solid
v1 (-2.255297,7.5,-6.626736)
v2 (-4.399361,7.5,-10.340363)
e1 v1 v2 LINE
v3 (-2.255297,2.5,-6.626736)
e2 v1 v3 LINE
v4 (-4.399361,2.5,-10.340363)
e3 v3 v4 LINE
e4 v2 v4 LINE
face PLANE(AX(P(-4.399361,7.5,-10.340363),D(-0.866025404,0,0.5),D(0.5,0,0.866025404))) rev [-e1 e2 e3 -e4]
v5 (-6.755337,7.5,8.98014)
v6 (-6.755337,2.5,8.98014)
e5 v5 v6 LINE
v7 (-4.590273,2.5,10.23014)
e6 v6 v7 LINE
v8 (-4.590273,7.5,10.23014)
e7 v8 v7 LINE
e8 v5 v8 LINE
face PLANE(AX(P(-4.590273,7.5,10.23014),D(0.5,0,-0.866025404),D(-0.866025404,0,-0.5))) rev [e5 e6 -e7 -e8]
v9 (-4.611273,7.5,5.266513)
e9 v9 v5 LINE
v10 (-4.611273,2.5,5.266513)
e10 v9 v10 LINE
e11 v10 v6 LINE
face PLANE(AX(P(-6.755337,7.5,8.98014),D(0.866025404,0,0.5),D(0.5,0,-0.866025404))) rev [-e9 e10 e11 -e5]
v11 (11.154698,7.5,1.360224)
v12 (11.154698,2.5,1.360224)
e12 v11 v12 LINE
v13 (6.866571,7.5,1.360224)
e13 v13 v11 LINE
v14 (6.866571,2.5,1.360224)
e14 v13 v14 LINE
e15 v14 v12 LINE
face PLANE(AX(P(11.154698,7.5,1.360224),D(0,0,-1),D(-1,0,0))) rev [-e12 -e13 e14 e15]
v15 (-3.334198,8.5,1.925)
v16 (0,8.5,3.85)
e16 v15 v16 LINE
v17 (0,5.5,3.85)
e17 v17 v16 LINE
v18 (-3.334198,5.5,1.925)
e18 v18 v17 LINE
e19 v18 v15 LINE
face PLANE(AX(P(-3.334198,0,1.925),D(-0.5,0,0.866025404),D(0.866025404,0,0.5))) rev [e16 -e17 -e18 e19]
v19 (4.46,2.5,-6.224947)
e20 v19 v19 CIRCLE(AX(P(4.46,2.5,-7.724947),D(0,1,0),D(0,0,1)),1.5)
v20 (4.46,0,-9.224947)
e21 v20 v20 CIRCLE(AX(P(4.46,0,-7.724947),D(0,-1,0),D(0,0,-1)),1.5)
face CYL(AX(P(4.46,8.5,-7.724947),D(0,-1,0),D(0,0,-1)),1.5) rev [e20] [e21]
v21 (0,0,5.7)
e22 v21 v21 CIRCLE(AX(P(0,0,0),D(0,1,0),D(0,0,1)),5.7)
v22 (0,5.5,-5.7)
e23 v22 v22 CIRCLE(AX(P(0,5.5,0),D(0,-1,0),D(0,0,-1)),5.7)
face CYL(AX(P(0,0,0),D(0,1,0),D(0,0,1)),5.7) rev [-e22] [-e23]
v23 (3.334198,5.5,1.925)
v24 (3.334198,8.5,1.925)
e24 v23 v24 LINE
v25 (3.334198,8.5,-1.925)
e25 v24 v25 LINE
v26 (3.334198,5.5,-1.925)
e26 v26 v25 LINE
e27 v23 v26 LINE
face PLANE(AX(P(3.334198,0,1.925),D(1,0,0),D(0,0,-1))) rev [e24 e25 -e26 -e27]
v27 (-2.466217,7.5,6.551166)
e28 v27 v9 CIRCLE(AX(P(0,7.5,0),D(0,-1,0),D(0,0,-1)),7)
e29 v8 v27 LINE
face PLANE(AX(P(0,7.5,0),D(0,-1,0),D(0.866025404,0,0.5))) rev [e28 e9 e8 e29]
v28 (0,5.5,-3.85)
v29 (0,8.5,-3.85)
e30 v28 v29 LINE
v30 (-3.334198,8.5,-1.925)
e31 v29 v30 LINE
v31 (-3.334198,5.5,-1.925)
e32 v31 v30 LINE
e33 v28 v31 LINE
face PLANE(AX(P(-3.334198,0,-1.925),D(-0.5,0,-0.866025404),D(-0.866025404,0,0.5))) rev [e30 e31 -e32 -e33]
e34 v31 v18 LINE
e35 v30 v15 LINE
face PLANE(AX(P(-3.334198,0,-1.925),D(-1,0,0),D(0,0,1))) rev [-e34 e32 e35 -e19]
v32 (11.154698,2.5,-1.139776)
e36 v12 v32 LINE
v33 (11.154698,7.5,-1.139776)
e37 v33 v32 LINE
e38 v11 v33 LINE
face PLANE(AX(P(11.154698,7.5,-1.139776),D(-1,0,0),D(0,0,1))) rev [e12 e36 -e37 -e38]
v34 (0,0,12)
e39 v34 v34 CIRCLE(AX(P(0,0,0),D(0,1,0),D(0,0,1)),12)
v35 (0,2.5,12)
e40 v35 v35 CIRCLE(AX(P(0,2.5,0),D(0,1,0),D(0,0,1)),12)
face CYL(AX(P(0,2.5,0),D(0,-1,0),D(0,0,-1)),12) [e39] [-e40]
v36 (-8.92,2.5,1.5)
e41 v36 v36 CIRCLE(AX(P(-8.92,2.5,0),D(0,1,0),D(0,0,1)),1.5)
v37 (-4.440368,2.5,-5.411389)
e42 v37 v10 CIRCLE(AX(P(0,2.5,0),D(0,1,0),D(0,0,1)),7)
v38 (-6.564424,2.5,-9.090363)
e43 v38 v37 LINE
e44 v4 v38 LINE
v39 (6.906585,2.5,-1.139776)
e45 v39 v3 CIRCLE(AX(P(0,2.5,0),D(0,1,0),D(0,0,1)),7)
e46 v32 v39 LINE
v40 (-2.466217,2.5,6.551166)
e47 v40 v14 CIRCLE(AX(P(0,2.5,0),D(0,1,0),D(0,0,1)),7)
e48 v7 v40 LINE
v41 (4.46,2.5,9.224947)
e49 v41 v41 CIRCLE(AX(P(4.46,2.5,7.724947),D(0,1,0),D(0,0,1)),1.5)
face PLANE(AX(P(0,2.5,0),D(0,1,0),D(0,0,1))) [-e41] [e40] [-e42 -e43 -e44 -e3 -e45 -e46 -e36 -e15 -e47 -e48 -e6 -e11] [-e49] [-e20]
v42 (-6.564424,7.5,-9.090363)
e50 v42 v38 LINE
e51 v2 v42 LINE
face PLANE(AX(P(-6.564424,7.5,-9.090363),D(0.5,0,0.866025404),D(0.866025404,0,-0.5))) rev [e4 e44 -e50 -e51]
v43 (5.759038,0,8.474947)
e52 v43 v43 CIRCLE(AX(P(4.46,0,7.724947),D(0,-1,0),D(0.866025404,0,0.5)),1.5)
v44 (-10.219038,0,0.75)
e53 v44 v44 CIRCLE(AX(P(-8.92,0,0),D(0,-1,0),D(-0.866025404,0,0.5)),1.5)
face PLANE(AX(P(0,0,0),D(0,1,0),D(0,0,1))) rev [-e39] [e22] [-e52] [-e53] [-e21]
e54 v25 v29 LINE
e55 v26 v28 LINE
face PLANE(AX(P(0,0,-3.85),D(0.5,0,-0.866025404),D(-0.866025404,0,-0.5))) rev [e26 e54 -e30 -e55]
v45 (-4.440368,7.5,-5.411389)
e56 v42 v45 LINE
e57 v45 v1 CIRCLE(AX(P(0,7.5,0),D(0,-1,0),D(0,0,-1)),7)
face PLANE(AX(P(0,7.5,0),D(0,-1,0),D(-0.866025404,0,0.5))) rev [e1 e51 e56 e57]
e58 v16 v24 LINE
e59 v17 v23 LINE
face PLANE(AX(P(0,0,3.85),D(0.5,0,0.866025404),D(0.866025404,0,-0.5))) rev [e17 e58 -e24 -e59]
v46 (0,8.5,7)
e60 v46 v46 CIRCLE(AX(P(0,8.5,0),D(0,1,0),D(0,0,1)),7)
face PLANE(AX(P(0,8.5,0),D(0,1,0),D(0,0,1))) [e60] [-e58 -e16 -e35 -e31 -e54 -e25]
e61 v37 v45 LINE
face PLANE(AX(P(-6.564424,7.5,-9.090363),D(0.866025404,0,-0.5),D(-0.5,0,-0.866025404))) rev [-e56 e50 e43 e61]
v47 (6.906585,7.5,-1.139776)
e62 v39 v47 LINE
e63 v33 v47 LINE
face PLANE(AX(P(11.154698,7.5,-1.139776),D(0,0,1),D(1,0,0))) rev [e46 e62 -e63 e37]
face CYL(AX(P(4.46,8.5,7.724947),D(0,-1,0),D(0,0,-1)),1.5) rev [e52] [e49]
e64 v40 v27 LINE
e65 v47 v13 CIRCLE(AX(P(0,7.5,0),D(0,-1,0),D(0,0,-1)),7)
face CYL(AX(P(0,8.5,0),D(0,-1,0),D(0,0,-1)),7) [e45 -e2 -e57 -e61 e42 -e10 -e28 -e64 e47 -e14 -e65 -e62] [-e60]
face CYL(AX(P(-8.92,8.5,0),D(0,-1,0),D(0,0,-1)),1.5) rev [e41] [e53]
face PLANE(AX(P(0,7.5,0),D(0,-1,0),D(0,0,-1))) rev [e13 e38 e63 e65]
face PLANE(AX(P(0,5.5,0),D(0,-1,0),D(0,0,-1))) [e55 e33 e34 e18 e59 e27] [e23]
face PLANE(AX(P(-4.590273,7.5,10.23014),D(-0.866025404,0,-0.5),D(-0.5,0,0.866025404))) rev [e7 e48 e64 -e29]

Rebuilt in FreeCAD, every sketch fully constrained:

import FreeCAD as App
import Part
import Sketcher
Q = App.Units.Quantity

doc = App.newDocument("Part")
body = doc.addObject("PartDesign::Body", "Body")

sketch1 = body.newObject("Sketcher::SketchObject", "Sketch")
sketch1.AttachmentSupport = (doc.getObject("XZ_Plane"), [""])
sketch1.MapMode = "FlatFace"
sketch1.addGeometry(Part.Circle(App.Vector(0, 0, 0), App.Vector(0, 0, 1), 12), False)
sketch1.addConstraint([
    Sketcher.Constraint("Coincident", 0, 3, -1, 1),
    Sketcher.Constraint("Diameter", 0, 24.0),
])
pad1 = body.newObject("PartDesign::Pad", "Pad")
pad1.Profile = sketch1
pad1.Length = 2.5
pad1.Reversed = True

sketch2 = body.newObject("Sketcher::SketchObject", "Sketch001")
sketch2.AttachmentSupport = (doc.getObject("XZ_Plane"), [""])
sketch2.MapMode = "FlatFace"
sketch2.AttachmentOffset = App.Placement(App.Vector(0, 0, -2.5), App.Rotation())
sketch2.addGeometry(Part.Circle(App.Vector(0, 0, 0), App.Vector(0, 0, 1), 6), False)
sketch2.addConstraint([
    Sketcher.Constraint("Coincident", 0, 3, -1, 1),
    Sketcher.Constraint("Diameter", 0, 11.4),
])
pocket1 = body.newObject("PartDesign::Pocket", "Pocket")
pocket1.Profile = sketch2
pocket1.Length = 2.5
pocket1.Reversed = True

sketch3 = body.newObject("Sketcher::SketchObject", "Sketch002")
sketch3.AttachmentSupport = (doc.getObject("XZ_Plane"), [""])
sketch3.MapMode = "FlatFace"
sketch3.AttachmentOffset = App.Placement(App.Vector(0, 0, -2.5), App.Rotation())
sketch3.addGeometry(Part.Circle(App.Vector(0, 0, 0), App.Vector(0, 0, 1), 7), False)
sketch3.addConstraint([
    Sketcher.Constraint("Coincident", 0, 3, -1, 1),
    Sketcher.Constraint("Diameter", 0, 14.0),
])
pad2 = body.newObject("PartDesign::Pad", "Pad001")
pad2.Profile = sketch3
pad2.Length = 6
pad2.Reversed = True

sketch4 = body.newObject("Sketcher::SketchObject", "Sketch003")
sketch4.AttachmentSupport = (doc.getObject("XZ_Plane"), [""])
sketch4.MapMode = "FlatFace"
sketch4.AttachmentOffset = App.Placement(App.Vector(0, 0, -8.5), App.Rotation())
sketch4.addGeometry([
    Part.LineSegment(App.Vector(3.3, 1.9, 0), App.Vector(3.3, -1.9, 0)),
    Part.LineSegment(App.Vector(3.3, -1.9, 0), App.Vector(0, -3.9, 0)),
    Part.LineSegment(App.Vector(0, -3.9, 0), App.Vector(-3.3, -1.9, 0)),
    Part.LineSegment(App.Vector(-3.3, -1.9, 0), App.Vector(-3.3, 1.9, 0)),
    Part.LineSegment(App.Vector(-3.3, 1.9, 0), App.Vector(0, 3.9, 0)),
    Part.LineSegment(App.Vector(0, 3.9, 0), App.Vector(3.3, 1.9, 0)),
], False)
sketch4.addConstraint([
    Sketcher.Constraint("Coincident", 0, 2, 1, 1),
    Sketcher.Constraint("Coincident", 1, 2, 2, 1),
    Sketcher.Constraint("Coincident", 2, 2, 3, 1),
    Sketcher.Constraint("Coincident", 3, 2, 4, 1),
    Sketcher.Constraint("Coincident", 4, 2, 5, 1),
    Sketcher.Constraint("Coincident", 5, 2, 0, 1),
    Sketcher.Constraint("Vertical", 0),
    Sketcher.Constraint("Vertical", 3),
    Sketcher.Constraint("Symmetric", 0, 2, 3, 2, -1, 1),
    Sketcher.Constraint("Symmetric", 1, 2, 4, 2, -1, 1),
    Sketcher.Constraint("PointOnObject", 1, 2, -2),
    Sketcher.Constraint("Parallel", 2, 5),
    Sketcher.Constraint("Horizontal", 0, 2, 2, 2),
    Sketcher.Constraint("Angle", 1, Q("-150 deg")),
    Sketcher.Constraint("DistanceY", 0, 2, 0, 1, 3.85),
    Sketcher.Constraint("DistanceY", 1, 2, 4, 2, 7.7),
])
pocket2 = body.newObject("PartDesign::Pocket", "Pocket001")
pocket2.Profile = sketch4
pocket2.Type = "ThroughAll"
pocket2.Reversed = True

sketch5 = body.newObject("Sketcher::SketchObject", "Sketch004")
sketch5.AttachmentSupport = (doc.getObject("XZ_Plane"), [""])
sketch5.MapMode = "FlatFace"
sketch5.AttachmentOffset = App.Placement(App.Vector(0, 0, -5.5), App.Rotation())
sketch5.addGeometry(Part.Circle(App.Vector(0, 0, 0), App.Vector(0, 0, 1), 6), False)
sketch5.addConstraint([
    Sketcher.Constraint("Coincident", 0, 3, -1, 1),
    Sketcher.Constraint("Diameter", 0, 11.4),
])
pocket3 = body.newObject("PartDesign::Pocket", "Pocket002")
pocket3.Profile = sketch5
pocket3.Length = 3
pocket3.Reversed = True

sketch6 = body.newObject("Sketcher::SketchObject", "Sketch005")
sketch6.AttachmentSupport = (doc.getObject("XZ_Plane"), [""])
sketch6.MapMode = "FlatFace"
sketch6.addGeometry(Part.Circle(App.Vector(4.5, -7.7, 0), App.Vector(0, 0, 1), 1.5), False)
sketch6.addConstraint([
    Sketcher.Constraint("Diameter", 0, 3.0),
    Sketcher.Constraint("DistanceX", -1, 1, 0, 3, 4.46),
    Sketcher.Constraint("DistanceY", 0, 3, -1, 1, 7.724947),
])
pocket4 = body.newObject("PartDesign::Pocket", "Pocket003")
pocket4.Profile = sketch6
pocket4.Length = 8.5
doc.recompute()

polarpattern = body.newObject("PartDesign::PolarPattern", "PolarPattern")
polarpattern.Originals = [pocket4]
polarpattern.Axis = (doc.getObject("Y_Axis"), [""])
polarpattern.Angle = 360
polarpattern.Occurrences = 3
body.Tip = polarpattern

sketch7 = body.newObject("Sketcher::SketchObject", "Sketch006")
sketch7.AttachmentSupport = (doc.getObject("XZ_Plane"), [""])
sketch7.MapMode = "FlatFace"
sketch7.AttachmentOffset = App.Placement(App.Vector(0, 0, -2.5), App.Rotation())
sketch7.addGeometry([
    Part.LineSegment(App.Vector(6.3, -1.1, 0), App.Vector(6.3, 1.4, 0)),
    Part.LineSegment(App.Vector(6.3, 1.4, 0), App.Vector(11.2, 1.4, 0)),
    Part.LineSegment(App.Vector(11.2, 1.4, 0), App.Vector(11.2, -1.1, 0)),
    Part.LineSegment(App.Vector(11.2, -1.1, 0), App.Vector(6.3, -1.1, 0)),
], False)
sketch7.addConstraint([
    Sketcher.Constraint("Coincident", 0, 2, 1, 1),
    Sketcher.Constraint("Coincident", 1, 2, 2, 1),
    Sketcher.Constraint("Coincident", 2, 2, 3, 1),
    Sketcher.Constraint("Coincident", 3, 2, 0, 1),
    Sketcher.Constraint("Vertical", 0),
    Sketcher.Constraint("Horizontal", 1),
    Sketcher.Constraint("Vertical", 2),
    Sketcher.Constraint("Horizontal", 3),
    Sketcher.Constraint("DistanceY", 0, 1, 0, 2, 2.5),
    Sketcher.Constraint("DistanceX", 1, 1, 1, 2, 4.841129),
    Sketcher.Constraint("DistanceX", -1, 1, 0, 2, 6.313568),
    Sketcher.Constraint("DistanceY", -1, 1, 0, 2, 1.360224),
])
pad3 = body.newObject("PartDesign::Pad", "Pad002")
pad3.Profile = sketch7
pad3.Length = 5
pad3.Reversed = True
doc.recompute()

polarpattern2 = body.newObject("PartDesign::PolarPattern", "PolarPattern001")
polarpattern2.Originals = [pad3]
polarpattern2.Axis = (doc.getObject("Y_Axis"), [""])
polarpattern2.Angle = 360
polarpattern2.Occurrences = 3
body.Tip = polarpattern2

doc.recompute()
